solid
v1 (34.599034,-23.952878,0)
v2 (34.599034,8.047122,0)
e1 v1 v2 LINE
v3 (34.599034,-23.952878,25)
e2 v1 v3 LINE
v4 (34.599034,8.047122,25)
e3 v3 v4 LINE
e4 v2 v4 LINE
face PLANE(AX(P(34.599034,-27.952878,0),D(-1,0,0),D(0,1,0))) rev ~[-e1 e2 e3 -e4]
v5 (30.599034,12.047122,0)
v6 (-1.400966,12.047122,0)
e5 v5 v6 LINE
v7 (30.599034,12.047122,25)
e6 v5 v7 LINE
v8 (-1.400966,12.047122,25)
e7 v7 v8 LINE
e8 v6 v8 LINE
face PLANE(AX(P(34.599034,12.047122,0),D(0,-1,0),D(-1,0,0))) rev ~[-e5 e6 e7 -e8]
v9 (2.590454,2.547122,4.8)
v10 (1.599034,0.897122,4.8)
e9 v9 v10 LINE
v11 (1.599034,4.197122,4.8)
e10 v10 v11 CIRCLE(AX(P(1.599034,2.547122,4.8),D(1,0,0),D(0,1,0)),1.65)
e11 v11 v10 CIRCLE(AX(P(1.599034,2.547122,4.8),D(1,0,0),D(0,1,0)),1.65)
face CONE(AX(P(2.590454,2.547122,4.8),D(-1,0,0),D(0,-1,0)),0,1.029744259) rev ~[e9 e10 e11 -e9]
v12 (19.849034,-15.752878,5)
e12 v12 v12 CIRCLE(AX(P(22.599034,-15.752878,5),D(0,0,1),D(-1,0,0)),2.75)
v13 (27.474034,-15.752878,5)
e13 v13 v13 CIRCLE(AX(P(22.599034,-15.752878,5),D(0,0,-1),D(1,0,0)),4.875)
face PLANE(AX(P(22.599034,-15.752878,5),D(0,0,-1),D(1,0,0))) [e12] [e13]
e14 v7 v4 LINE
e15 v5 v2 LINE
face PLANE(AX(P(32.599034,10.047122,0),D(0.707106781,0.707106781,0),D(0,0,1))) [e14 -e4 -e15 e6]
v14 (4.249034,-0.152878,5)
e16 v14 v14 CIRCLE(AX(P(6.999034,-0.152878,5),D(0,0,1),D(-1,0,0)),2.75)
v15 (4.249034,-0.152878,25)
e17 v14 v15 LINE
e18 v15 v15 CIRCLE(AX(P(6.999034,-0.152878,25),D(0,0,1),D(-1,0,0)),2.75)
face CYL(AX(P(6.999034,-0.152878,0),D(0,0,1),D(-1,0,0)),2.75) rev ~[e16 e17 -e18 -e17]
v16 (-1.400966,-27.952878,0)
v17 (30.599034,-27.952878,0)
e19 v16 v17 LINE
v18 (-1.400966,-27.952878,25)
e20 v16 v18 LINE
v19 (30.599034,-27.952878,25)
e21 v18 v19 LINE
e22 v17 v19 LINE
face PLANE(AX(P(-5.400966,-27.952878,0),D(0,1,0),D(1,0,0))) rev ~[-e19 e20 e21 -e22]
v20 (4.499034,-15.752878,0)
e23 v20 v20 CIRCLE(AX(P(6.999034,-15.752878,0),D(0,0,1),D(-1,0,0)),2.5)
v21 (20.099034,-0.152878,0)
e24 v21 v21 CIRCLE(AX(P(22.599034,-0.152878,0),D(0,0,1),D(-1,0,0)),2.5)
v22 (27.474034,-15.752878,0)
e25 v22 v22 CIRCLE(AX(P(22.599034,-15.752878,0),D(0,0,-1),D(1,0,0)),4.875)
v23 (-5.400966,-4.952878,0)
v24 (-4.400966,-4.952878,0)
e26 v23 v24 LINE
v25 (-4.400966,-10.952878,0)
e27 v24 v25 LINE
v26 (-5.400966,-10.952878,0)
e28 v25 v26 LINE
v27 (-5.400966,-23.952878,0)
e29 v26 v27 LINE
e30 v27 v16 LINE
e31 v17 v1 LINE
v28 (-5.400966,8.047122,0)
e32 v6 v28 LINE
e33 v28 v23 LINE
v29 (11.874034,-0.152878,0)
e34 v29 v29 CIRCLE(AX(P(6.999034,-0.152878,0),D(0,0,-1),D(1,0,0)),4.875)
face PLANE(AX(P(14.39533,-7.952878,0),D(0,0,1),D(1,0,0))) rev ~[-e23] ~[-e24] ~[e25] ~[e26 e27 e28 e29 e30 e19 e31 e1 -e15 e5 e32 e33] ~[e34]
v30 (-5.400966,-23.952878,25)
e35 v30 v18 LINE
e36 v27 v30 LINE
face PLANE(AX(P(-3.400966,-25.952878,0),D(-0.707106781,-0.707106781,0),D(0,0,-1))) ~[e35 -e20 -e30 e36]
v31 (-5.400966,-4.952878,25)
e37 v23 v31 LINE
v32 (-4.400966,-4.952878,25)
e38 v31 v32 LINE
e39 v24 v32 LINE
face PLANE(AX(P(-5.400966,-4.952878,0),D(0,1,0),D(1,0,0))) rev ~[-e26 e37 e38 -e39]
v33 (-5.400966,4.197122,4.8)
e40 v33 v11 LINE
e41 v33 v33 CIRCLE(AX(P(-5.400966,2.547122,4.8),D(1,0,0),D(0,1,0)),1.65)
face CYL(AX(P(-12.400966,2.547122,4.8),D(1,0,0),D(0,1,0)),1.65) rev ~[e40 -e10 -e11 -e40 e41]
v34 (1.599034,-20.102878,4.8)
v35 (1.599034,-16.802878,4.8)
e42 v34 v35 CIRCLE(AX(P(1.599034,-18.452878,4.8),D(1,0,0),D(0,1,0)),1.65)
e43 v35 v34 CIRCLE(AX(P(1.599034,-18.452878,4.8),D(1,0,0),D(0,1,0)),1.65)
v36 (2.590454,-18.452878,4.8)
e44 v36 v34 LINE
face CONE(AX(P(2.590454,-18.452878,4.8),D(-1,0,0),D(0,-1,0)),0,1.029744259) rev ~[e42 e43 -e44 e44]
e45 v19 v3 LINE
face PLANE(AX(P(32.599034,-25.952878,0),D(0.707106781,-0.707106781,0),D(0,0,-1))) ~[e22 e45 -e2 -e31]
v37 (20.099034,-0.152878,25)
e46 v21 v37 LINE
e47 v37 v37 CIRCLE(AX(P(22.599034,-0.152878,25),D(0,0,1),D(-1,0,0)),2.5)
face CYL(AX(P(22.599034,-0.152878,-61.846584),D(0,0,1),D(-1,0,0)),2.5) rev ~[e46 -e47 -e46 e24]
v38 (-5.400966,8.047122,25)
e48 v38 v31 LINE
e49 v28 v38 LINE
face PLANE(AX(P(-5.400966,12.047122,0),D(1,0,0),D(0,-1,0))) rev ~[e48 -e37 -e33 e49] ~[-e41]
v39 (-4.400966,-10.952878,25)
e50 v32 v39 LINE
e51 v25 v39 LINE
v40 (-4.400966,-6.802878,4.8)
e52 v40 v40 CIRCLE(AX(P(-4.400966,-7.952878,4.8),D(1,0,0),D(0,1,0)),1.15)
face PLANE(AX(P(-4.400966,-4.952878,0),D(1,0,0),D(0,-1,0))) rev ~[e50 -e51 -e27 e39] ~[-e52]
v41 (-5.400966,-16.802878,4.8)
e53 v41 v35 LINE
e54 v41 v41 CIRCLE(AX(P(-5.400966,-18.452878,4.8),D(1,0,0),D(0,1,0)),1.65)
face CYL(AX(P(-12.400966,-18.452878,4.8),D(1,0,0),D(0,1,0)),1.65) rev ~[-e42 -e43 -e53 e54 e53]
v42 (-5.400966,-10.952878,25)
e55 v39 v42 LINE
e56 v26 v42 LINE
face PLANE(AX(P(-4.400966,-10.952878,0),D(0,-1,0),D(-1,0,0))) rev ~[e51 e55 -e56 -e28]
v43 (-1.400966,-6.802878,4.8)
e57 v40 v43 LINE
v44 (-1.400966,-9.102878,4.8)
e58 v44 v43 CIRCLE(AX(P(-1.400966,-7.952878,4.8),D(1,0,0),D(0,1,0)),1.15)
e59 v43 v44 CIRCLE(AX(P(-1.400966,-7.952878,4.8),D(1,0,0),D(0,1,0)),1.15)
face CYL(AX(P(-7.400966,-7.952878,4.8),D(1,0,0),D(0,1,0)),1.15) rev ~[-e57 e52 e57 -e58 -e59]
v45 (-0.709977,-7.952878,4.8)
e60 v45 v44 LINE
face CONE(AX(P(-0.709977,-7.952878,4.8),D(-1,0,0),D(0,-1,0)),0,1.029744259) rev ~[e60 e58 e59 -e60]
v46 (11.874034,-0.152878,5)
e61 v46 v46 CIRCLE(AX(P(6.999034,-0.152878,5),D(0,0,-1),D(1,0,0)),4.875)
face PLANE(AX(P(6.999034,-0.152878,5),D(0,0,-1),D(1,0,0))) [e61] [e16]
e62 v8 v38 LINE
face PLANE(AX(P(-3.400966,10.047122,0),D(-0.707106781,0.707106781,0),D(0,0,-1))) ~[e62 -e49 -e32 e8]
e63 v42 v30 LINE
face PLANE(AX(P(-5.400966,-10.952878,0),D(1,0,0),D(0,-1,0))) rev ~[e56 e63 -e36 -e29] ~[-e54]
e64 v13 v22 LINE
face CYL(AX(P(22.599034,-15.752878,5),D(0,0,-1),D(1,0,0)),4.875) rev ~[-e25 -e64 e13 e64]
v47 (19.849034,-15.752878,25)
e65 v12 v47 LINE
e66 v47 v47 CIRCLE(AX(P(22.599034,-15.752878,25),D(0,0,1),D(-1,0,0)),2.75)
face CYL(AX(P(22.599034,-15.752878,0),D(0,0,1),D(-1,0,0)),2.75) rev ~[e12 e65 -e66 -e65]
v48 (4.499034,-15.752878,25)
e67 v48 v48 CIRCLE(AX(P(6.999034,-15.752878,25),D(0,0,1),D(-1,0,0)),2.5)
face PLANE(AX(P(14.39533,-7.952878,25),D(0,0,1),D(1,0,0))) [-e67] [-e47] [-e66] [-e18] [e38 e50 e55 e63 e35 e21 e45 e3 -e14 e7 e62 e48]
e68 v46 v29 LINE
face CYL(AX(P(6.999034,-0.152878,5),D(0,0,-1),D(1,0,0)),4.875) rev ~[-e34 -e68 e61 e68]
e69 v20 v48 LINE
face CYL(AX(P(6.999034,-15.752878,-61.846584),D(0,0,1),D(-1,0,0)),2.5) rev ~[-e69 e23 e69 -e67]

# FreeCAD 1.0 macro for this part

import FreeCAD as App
import Part
import Sketcher
from FreeCAD import Vector


def edges_at(feature, points):
    """Names of the edges that pass closest to the given points."""
    edges = feature.Shape.Edges
    near = lambda p: min(range(len(edges)), key=lambda i: edges[i].distToShape(Part.Vertex(*p))[0])
    return sorted({f"Edge{near(p) + 1}" for p in points})


def add_polygon(sketch, points):
    """Adds a closed chain of lines whose ends are joined by coincident constraints."""
    first, n = sketch.GeometryCount, len(points)
    for a, b in zip(points, points[1:] + points[:1]):
        sketch.addGeometry(Part.LineSegment(App.Vector(*a, 0), App.Vector(*b, 0)), False)
    for i in range(n):
        sketch.addConstraint(Sketcher.Constraint("Coincident", first + i, 2, first + (i + 1) % n, 1))

doc = App.newDocument("Part")
params = doc.addObject("Spreadsheet::Sheet", "Params")
for row, (alias, value) in enumerate([
    ("sketch1_width", "40 mm"),
    ("sketch1_width2", "1 mm"),
    ("sketch1_height", "17 mm"),
    ("pad1_length", "25 mm"),
    ("chamfer_size", "4 mm"),
    ("chamfer_size2", "4 mm"),
    ("sketch2_diameter", "5.5 mm"),
    ("hole_diameter", "5.5 mm"),
    ("hole_cbore_diameter", "9.75 mm"),
    ("hole_cbore_depth", "5 mm"),
    ("sketch3_diameter", "5.5 mm"),
    ("hole2_diameter", "5.5 mm"),
    ("hole2_cbore_diameter", "9.75 mm"),
    ("hole2_cbore_depth", "5 mm"),
    ("sketch4_diameter", "5 mm"),
    ("hole3_diameter", "5 mm"),
    ("sketch5_diameter", "5 mm"),
    ("hole4_diameter", "5 mm"),
    ("sketch6_diameter", "3.3 mm"),
    ("hole5_diameter", "3.3 mm"),
    ("hole5_depth", "7 mm"),
    ("sketch7_diameter", "2.3 mm"),
    ("hole6_diameter", "2.3 mm"),
    ("hole6_depth", "3 mm"),
], start=1):
    params.set(f"A{row}", alias)
    params.set(f"B{row}", "=" + value)
    params.setAlias(f"B{row}", alias)

body = doc.addObject("PartDesign::Body", "Body")

sketch1 = body.newObject("Sketcher::SketchObject", "Sketch")
sketch1.AttachmentSupport = (doc.getObject("XY_Plane"), [""])
sketch1.MapMode = "FlatFace"
add_polygon(sketch1, [(34.599034, 12.047122), (-5.400966, 12.047122), (-5.400966, -4.952878), (-4.400966, -4.952878), (-4.400966, -10.952878), (-5.400966, -10.952878), (-5.400966, -27.952878), (34.599034, -27.952878)])
sketch1.addConstraint([
    Sketcher.Constraint("Horizontal", 0),
    Sketcher.Constraint("Vertical", 1),
    Sketcher.Constraint("Horizontal", 2),
    Sketcher.Constraint("Vertical", 3),
    Sketcher.Constraint("Horizontal", 4),
    Sketcher.Constraint("Vertical", 5),
    Sketcher.Constraint("Horizontal", 6),
    Sketcher.Constraint("Vertical", 7),
    Sketcher.Constraint("Vertical", 1, 2, 4, 2),
    Sketcher.Constraint("Equal", 1, 5),
    Sketcher.Constraint("Equal", 6, 7),
    Sketcher.Constraint("DistanceX", 0, 2, 0, 1, 40.0),
    Sketcher.Constraint("DistanceX", 2, 1, 2, 2, 1.0),
    Sketcher.Constraint("DistanceY", 1, 2, 1, 1, 17.0),
    Sketcher.Constraint("DistanceX", 0, 2, -1, 1, 5.400966),
    Sketcher.Constraint("DistanceY", -1, 1, 0, 2, 12.047122),
])
sketch1.setExpression("Constraints[19]", "Params.sketch1_width")
sketch1.setExpression("Constraints[20]", "Params.sketch1_width2")
sketch1.setExpression("Constraints[21]", "Params.sketch1_height")
pad1 = body.newObject("PartDesign::Pad", "Pad")
pad1.Profile = sketch1
pad1.setExpression("Length", "Params.pad1_length")
doc.recompute()

chamfer = body.newObject("PartDesign::Chamfer", "Chamfer")
chamfer.Base = (pad1, edges_at(pad1, [
    (-5.401, 12.047, 12.5),
    (-5.401, -27.953, 12.5),
    (34.599, -27.953, 12.5),
    (34.599, 12.047, 12.5),
]))
chamfer.ChamferType = "Two distances"
chamfer.setExpression("Size", "Params.chamfer_size")
chamfer.setExpression("Size2", "Params.chamfer_size2")

sketch2 = body.newObject("Sketcher::SketchObject", "Sketch001")
sketch2.AttachmentSupport = (doc.getObject("XY_Plane"), [""])
sketch2.MapMode = "FlatFace"
sketch2.addGeometry(Part.Circle(Vector(6.999034, -0.152878, 0), Vector(0, 0, 1), 2.75), False)
sketch2.addConstraint([
    Sketcher.Constraint("Diameter", 0, 5.5),
    Sketcher.Constraint("DistanceX", -1, 1, 0, 3, 6.999034),
    Sketcher.Constraint("DistanceY", 0, 3, -1, 1, 0.152878),
])
sketch2.setExpression("Constraints[0]", "Params.sketch2_diameter")
doc.recompute()
hole = body.newObject("PartDesign::Hole", "Hole")
hole.Profile = sketch2
hole.ThreadType = "None"
hole.setExpression("Diameter", "Params.hole_diameter")
hole.DepthType = "ThroughAll"
hole.HoleCutType = "Counterbore"
hole.setExpression("HoleCutDiameter", "Params.hole_cbore_diameter")
hole.setExpression("HoleCutDepth", "Params.hole_cbore_depth")
hole.Reversed = True

sketch3 = body.newObject("Sketcher::SketchObject", "Sketch002")
sketch3.AttachmentSupport = (doc.getObject("XY_Plane"), [""])
sketch3.MapMode = "FlatFace"
sketch3.addGeometry(Part.Circle(Vector(22.599034, -15.752878, 0), Vector(0, 0, 1), 2.75), False)
sketch3.addConstraint([
    Sketcher.Constraint("Diameter", 0, 5.5),
    Sketcher.Constraint("DistanceX", -1, 1, 0, 3, 22.599034),
    Sketcher.Constraint("DistanceY", 0, 3, -1, 1, 15.752878),
])
sketch3.setExpression("Constraints[0]", "Params.sketch3_diameter")
doc.recompute()
hole2 = body.newObject("PartDesign::Hole", "Hole001")
hole2.Profile = sketch3
hole2.ThreadType = "None"
hole2.setExpression("Diameter", "Params.hole2_diameter")
hole2.DepthType = "ThroughAll"
hole2.HoleCutType = "Counterbore"
hole2.setExpression("HoleCutDiameter", "Params.hole2_cbore_diameter")
hole2.setExpression("HoleCutDepth", "Params.hole2_cbore_depth")
hole2.Reversed = True

sketch4 = body.newObject("Sketcher::SketchObject", "Sketch003")
sketch4.AttachmentSupport = (doc.getObject("XY_Plane"), [""])
sketch4.MapMode = "FlatFace"
sketch4.addGeometry(Part.Circle(Vector(22.599034, -0.152878, 0), Vector(0, 0, 1), 2.5), False)
sketch4.addConstraint([
    Sketcher.Constraint("Diameter", 0, 5.0),
    Sketcher.Constraint("DistanceX", -1, 1, 0, 3, 22.599034),
    Sketcher.Constraint("DistanceY", 0, 3, -1, 1, 0.152878),
])
sketch4.setExpression("Constraints[0]", "Params.sketch4_diameter")
doc.recompute()
hole3 = body.newObject("PartDesign::Hole", "Hole002")
hole3.Profile = sketch4
hole3.ThreadType = "None"
hole3.setExpression("Diameter", "Params.hole3_diameter")
hole3.DepthType = "ThroughAll"
hole3.Reversed = True

sketch5 = body.newObject("Sketcher::SketchObject", "Sketch004")
sketch5.AttachmentSupport = (doc.getObject("XY_Plane"), [""])
sketch5.MapMode = "FlatFace"
sketch5.addGeometry(Part.Circle(Vector(6.999034, -15.752878, 0), Vector(0, 0, 1), 2.5), False)
sketch5.addConstraint([
    Sketcher.Constraint("Diameter", 0, 5.0),
    Sketcher.Constraint("DistanceX", -1, 1, 0, 3, 6.999034),
    Sketcher.Constraint("DistanceY", 0, 3, -1, 1, 15.752878),
])
sketch5.setExpression("Constraints[0]", "Params.sketch5_diameter")
doc.recompute()
hole4 = body.newObject("PartDesign::Hole", "Hole003")
hole4.Profile = sketch5
hole4.ThreadType = "None"
hole4.setExpression("Diameter", "Params.hole4_diameter")
hole4.DepthType = "ThroughAll"
hole4.Reversed = True

sketch6 = body.newObject("Sketcher::SketchObject", "Sketch005")
sketch6.AttachmentSupport = (doc.getObject("YZ_Plane"), [""])
sketch6.MapMode = "FlatFace"
sketch6.AttachmentOffset = App.Placement(Vector(0, 0, -5.400966), App.Rotation())
sketch6.addGeometry([
    Part.Circle(Vector(2.547122, 4.8, 0), Vector(0, 0, 1), 1.65),
    Part.Circle(Vector(-18.452878, 4.8, 0), Vector(0, 0, 1), 1.65),
], False)
sketch6.addConstraint([
    Sketcher.Constraint("Equal", 0, 1),
    Sketcher.Constraint("Horizontal", 0, 3, 1, 3),
    Sketcher.Constraint("Diameter", 0, 3.3),
    Sketcher.Constraint("DistanceX", 1, 3, 0, 3, 21.0),
    Sketcher.Constraint("DistanceY", -1, 1, 0, 3, 4.8),
    Sketcher.Constraint("DistanceX", -1, 1, 0, 3, 2.547122),
])
sketch6.setExpression("Constraints[2]", "Params.sketch6_diameter")
doc.recompute()
hole5 = body.newObject("PartDesign::Hole", "Hole004")
hole5.Profile = sketch6
hole5.ThreadType = "None"
hole5.setExpression("Diameter", "Params.hole5_diameter")
hole5.DepthType = "Dimension"
hole5.setExpression("Depth", "Params.hole5_depth")
hole5.DrillPoint = "Angled"
hole5.DrillPointAngle = 118
hole5.Reversed = True

sketch7 = body.newObject("Sketcher::SketchObject", "Sketch006")
sketch7.AttachmentSupport = (doc.getObject("YZ_Plane"), [""])
sketch7.MapMode = "FlatFace"
sketch7.AttachmentOffset = App.Placement(Vector(0, 0, -4.400966), App.Rotation())
sketch7.addGeometry(Part.Circle(Vector(-7.952878, 4.8, 0), Vector(0, 0, 1), 1.15), False)
sketch7.addConstraint([
    Sketcher.Constraint("Diameter", 0, 2.3),
    Sketcher.Constraint("DistanceY", -1, 1, 0, 3, 4.8),
    Sketcher.Constraint("DistanceX", 0, 3, -1, 1, 7.952878),
])
sketch7.setExpression("Constraints[0]", "Params.sketch7_diameter")
doc.recompute()
hole6 = body.newObject("PartDesign::Hole", "Hole005")
hole6.Profile = sketch7
hole6.ThreadType = "None"
hole6.setExpression("Diameter", "Params.hole6_diameter")
hole6.DepthType = "Dimension"
hole6.setExpression("Depth", "Params.hole6_depth")
hole6.DrillPoint = "Angled"
hole6.DrillPointAngle = 118
hole6.Reversed = True

doc.recompute()
